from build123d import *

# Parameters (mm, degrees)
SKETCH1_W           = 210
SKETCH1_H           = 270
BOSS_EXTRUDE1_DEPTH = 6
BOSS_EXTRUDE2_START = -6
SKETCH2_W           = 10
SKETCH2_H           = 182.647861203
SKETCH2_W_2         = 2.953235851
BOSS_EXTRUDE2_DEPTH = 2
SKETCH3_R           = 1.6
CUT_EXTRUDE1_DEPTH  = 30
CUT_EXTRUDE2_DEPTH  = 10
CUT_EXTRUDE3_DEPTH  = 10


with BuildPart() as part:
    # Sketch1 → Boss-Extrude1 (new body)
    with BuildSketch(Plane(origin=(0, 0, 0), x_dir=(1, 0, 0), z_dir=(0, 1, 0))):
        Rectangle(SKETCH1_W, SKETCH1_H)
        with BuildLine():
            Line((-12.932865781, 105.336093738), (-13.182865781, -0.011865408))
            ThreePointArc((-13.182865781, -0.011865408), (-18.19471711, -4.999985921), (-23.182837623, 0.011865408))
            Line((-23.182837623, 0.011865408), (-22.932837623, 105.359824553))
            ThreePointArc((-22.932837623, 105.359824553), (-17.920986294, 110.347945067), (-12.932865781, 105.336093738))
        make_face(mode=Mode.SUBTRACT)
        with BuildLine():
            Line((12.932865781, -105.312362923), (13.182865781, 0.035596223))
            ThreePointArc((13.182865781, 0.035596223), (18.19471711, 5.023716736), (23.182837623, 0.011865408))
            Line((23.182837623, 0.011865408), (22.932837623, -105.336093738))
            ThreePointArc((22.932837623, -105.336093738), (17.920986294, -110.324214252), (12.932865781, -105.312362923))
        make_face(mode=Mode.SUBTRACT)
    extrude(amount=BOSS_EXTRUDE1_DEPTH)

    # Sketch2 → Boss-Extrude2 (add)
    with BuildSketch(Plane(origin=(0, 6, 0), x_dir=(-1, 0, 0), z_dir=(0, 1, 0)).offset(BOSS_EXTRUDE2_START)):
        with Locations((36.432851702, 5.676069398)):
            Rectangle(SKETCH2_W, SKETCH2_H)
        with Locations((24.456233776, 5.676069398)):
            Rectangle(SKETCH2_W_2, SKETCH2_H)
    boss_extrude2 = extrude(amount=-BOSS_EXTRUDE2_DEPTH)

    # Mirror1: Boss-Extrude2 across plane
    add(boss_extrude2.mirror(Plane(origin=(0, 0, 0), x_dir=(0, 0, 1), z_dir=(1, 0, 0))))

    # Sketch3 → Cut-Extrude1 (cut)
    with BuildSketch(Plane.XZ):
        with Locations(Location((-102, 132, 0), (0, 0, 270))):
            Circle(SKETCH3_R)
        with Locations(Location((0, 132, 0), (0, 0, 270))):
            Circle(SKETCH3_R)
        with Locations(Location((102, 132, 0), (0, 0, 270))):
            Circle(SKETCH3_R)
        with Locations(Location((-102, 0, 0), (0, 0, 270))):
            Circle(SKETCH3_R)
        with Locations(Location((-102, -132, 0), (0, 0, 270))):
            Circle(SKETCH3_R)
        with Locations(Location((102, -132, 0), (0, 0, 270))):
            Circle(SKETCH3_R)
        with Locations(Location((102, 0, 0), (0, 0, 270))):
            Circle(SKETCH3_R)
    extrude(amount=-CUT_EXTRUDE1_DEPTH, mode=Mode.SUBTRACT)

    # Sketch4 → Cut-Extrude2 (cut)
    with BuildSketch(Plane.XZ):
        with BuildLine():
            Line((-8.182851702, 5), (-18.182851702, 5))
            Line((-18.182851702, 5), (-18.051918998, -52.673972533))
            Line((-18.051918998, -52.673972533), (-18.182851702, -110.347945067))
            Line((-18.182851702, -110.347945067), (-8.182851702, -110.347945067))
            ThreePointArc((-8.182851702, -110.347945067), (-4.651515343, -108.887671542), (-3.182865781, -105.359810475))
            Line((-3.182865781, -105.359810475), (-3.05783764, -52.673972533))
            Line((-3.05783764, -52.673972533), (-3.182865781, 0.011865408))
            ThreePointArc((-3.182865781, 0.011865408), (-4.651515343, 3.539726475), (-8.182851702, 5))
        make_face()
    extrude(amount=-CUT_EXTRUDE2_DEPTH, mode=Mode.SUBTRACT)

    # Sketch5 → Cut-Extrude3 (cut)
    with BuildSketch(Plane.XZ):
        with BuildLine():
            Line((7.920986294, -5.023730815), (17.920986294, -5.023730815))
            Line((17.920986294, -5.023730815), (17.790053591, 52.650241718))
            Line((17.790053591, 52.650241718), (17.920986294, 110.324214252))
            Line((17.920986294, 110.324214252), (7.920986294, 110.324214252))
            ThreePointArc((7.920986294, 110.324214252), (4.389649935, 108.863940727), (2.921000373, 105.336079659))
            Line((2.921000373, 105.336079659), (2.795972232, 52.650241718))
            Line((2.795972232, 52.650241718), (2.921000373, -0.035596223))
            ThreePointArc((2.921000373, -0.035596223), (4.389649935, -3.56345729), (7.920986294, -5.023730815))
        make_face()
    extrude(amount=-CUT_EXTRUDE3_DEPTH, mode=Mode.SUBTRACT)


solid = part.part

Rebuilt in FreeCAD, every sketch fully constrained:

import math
import FreeCAD as App
import Part
import Sketcher

V = App.Vector
Q = App.Units.Quantity

doc = App.newDocument("Part")
body = doc.addObject("PartDesign::Body", "Body")

# Sketch on XZ plane
sketch1 = doc.addObject("Sketcher::SketchObject", "Sketch")
body.addObject(sketch1)
sketch1.AttachmentSupport = (doc.XZ_Plane, [""])
sketch1.MapMode = "FlatFace"
sketch1.addGeometry([
    Part.LineSegment(V(-105, -135, 0), V(-105, 135, 0)),  # 0
    Part.LineSegment(V(-105, 135, 0), V(105, 135, 0)),  # 1
    Part.LineSegment(V(105, 135, 0), V(105, -135, 0)),  # 2
    Part.LineSegment(V(105, -135, 0), V(-105, -135, 0)),  # 3
    Part.ArcOfCircle(Part.Circle(V(18, 105, 0), V(0, 0, 1), 5), math.radians(0), math.radians(180)),  # 4
    Part.LineSegment(V(13, 105, 0), V(13, 0, 0)),  # 5
    Part.ArcOfCircle(Part.Circle(V(18, 0, 0), V(0, 0, 1), 5), math.radians(-180), math.radians(0)),  # 6
    Part.LineSegment(V(23, 0, 0), V(23, 105, 0)),  # 7
    Part.ArcOfCircle(Part.Circle(V(-18, -105, 0), V(0, 0, 1), 5), math.radians(-180), math.radians(0)),  # 8
    Part.LineSegment(V(-13, -105, 0), V(-13, 0, 0)),  # 9
    Part.ArcOfCircle(Part.Circle(V(-18, 0, 0), V(0, 0, 1), 5), math.radians(0), math.radians(180)),  # 10
    Part.LineSegment(V(-23, 0, 0), V(-23, -105, 0)),  # 11
], False)
sketch1.addConstraint([
    Sketcher.Constraint("Coincident", 0, 2, 1, 1),
    Sketcher.Constraint("Coincident", 1, 2, 2, 1),
    Sketcher.Constraint("Coincident", 2, 2, 3, 1),
    Sketcher.Constraint("Coincident", 3, 2, 0, 1),
    Sketcher.Constraint("Tangent", 4, 2, 5, 1),
    Sketcher.Constraint("Tangent", 5, 2, 6, 1),
    Sketcher.Constraint("Tangent", 6, 2, 7, 1),
    Sketcher.Constraint("Tangent", 7, 2, 4, 1),
    Sketcher.Constraint("Tangent", 8, 2, 9, 1),
    Sketcher.Constraint("Tangent", 9, 2, 10, 1),
    Sketcher.Constraint("Tangent", 10, 2, 11, 1),
    Sketcher.Constraint("Tangent", 11, 2, 8, 1),
    Sketcher.Constraint("Vertical", 0),
    Sketcher.Constraint("Horizontal", 1),
    Sketcher.Constraint("Vertical", 2),
    Sketcher.Constraint("Horizontal", 3),
    Sketcher.Constraint("Equal", 4, 6),
    Sketcher.Constraint("Equal", 6, 8),
    Sketcher.Constraint("Equal", 8, 10),
    Sketcher.Constraint("Symmetric", 0, 2, 2, 2, -1, 1),
    Sketcher.Constraint("Symmetric", 6, 2, 10, 2, -2),
    Sketcher.Constraint("PointOnObject", 10, 3, -1),
    Sketcher.Constraint("Parallel", 7, 9),
    Sketcher.Constraint("Equal", 7, 9),
    Sketcher.Constraint("Radius", 4, Q("5 mm")),
    Sketcher.Constraint("DistanceX", 1, 1, 1, 2, Q("210 mm")),
    Sketcher.Constraint("DistanceY", 0, 1, 0, 2, Q("270 mm")),
    Sketcher.Constraint("DistanceX", 4, 3, 6, 3, Q("0.25 mm")),
    Sketcher.Constraint("DistanceX", -1, 1, 4, 3, Q("17.932852 mm")),
    Sketcher.Constraint("DistanceY", -1, 1, 4, 3, Q("105.324228 mm")),
])
pad1 = doc.addObject("PartDesign::Pad", "Pad")
body.addObject(pad1)
pad1.Profile = sketch1
pad1.Length = 6
pad1.Reversed = True

# Sketch on XZ plane
sketch2 = doc.addObject("Sketcher::SketchObject", "Sketch001")
body.addObject(sketch2)
sketch2.AttachmentSupport = (doc.XZ_Plane, [""])
sketch2.MapMode = "FlatFace"
sketch2.addGeometry([
    Part.LineSegment(V(-31.4, 97, 0), V(-31.4, -85.6, 0)),  # 0
    Part.LineSegment(V(-31.4, -85.6, 0), V(-41.4, -85.6, 0)),  # 1
    Part.LineSegment(V(-41.4, -85.6, 0), V(-41.4, 97, 0)),  # 2
    Part.LineSegment(V(-41.4, 97, 0), V(-31.4, 97, 0)),  # 3
    Part.LineSegment(V(-23, 97, 0), V(-23, -85.6, 0)),  # 4
    Part.LineSegment(V(-23, -85.6, 0), V(-25.9, -85.6, 0)),  # 5
    Part.LineSegment(V(-25.9, -85.6, 0), V(-25.9, 97, 0)),  # 6
    Part.LineSegment(V(-25.9, 97, 0), V(-23, 97, 0)),  # 7
], False)
sketch2.addConstraint([
    Sketcher.Constraint("Coincident", 0, 2, 1, 1),
    Sketcher.Constraint("Coincident", 1, 2, 2, 1),
    Sketcher.Constraint("Coincident", 2, 2, 3, 1),
    Sketcher.Constraint("Coincident", 3, 2, 0, 1),
    Sketcher.Constraint("Coincident", 4, 2, 5, 1),
    Sketcher.Constraint("Coincident", 5, 2, 6, 1),
    Sketcher.Constraint("Coincident", 6, 2, 7, 1),
    Sketcher.Constraint("Coincident", 7, 2, 4, 1),
    Sketcher.Constraint("Vertical", 0),
    Sketcher.Constraint("Horizontal", 1),
    Sketcher.Constraint("Vertical", 2),
    Sketcher.Constraint("Horizontal", 3),
    Sketcher.Constraint("Vertical", 4),
    Sketcher.Constraint("Horizontal", 5),
    Sketcher.Constraint("Vertical", 6),
    Sketcher.Constraint("Horizontal", 7),
    Sketcher.Constraint("Horizontal", 1, 2, 4, 2),
    Sketcher.Constraint("Horizontal", 3, 2, 6, 2),
    Sketcher.Constraint("DistanceX", 1, 2, 1, 1, Q("10 mm")),
    Sketcher.Constraint("DistanceY", -1, 1, 2, 2, Q("97 mm")),
    Sketcher.Constraint("DistanceX", 0, 2, 5, 2, Q("5.5 mm")),
    Sketcher.Constraint("DistanceY", 0, 2, 0, 1, Q("182.647861 mm")),
    Sketcher.Constraint("DistanceX", 5, 2, 5, 1, Q("2.953236 mm")),
    Sketcher.Constraint("DistanceX", 0, 2, -1, 1, Q("31.432852 mm")),
])
pad2 = doc.addObject("PartDesign::Pad", "Pad001")
body.addObject(pad2)
pad2.Profile = sketch2
pad2.Length = 2
doc.recompute()

mirrored = doc.addObject("PartDesign::Mirrored", "Mirrored")
body.addObject(mirrored)
mirrored.Originals = [pad2]
mirrored.MirrorPlane = (doc.YZ_Plane, [""])
body.Tip = mirrored

# Sketch on XZ plane
sketch3 = doc.addObject("Sketcher::SketchObject", "Sketch002")
body.addObject(sketch3)
sketch3.AttachmentSupport = (doc.XZ_Plane, [""])
sketch3.MapMode = "FlatFace"
sketch3.addGeometry([
    Part.Circle(V(-102, 132, 0), V(0, 0, 1), 1.6),  # 0
    Part.Circle(V(0, 132, 0), V(0, 0, 1), 1.6),  # 1
    Part.Circle(V(102, 132, 0), V(0, 0, 1), 1.6),  # 2
    Part.Circle(V(-102, 0, 0), V(0, 0, 1), 1.6),  # 3
    Part.Circle(V(-102, -132, 0), V(0, 0, 1), 1.6),  # 4
    Part.Circle(V(102, -132, 0), V(0, 0, 1), 1.6),  # 5
    Part.Circle(V(102, 0, 0), V(0, 0, 1), 1.6),  # 6
], False)
sketch3.addConstraint([
    Sketcher.Constraint("Equal", 0, 1),
    Sketcher.Constraint("Equal", 1, 2),
    Sketcher.Constraint("Equal", 2, 3),
    Sketcher.Constraint("Equal", 3, 4),
    Sketcher.Constraint("Equal", 4, 5),
    Sketcher.Constraint("Equal", 5, 6),
    Sketcher.Constraint("Symmetric", 2, 3, 4, 3, -1, 1),
    Sketcher.Constraint("Symmetric", 0, 3, 5, 3, -1, 1),
    Sketcher.Constraint("Symmetric", 3, 3, 6, 3, -1, 1),
    Sketcher.Constraint("Symmetric", 0, 3, 2, 3, -2),
    Sketcher.Constraint("PointOnObject", 1, 3, -2),
    Sketcher.Constraint("PointOnObject", 3, 3, -1),
    Sketcher.Constraint("Horizontal", 0, 3, 1, 3),
    Sketcher.Constraint("Vertical", 0, 3, 3, 3),
    Sketcher.Constraint("Diameter", 0, Q("3.2 mm")),
    Sketcher.Constraint("DistanceX", 0, 3, -1, 1, Q("102 mm")),
    Sketcher.Constraint("DistanceY", -1, 1, 0, 3, Q("132 mm")),
])
pocket1 = doc.addObject("PartDesign::Pocket", "Pocket")
body.addObject(pocket1)
pocket1.Profile = sketch3
pocket1.Length = 30

# Sketch on XZ plane
sketch4 = doc.addObject("Sketcher::SketchObject", "Sketch003")
body.addObject(sketch4)
sketch4.AttachmentSupport = (doc.XZ_Plane, [""])
sketch4.MapMode = "FlatFace"
sketch4.addGeometry([
    Part.LineSegment(V(-8, 5, 0), V(-18, 5, 0)),  # 0
    Part.LineSegment(V(-18, 5, 0), V(-18, -53, 0)),  # 1
    Part.LineSegment(V(-18, -53, 0), V(-18, -110, 0)),  # 2
    Part.LineSegment(V(-18, -110, 0), V(-8, -110, 0)),  # 3
    Part.ArcOfCircle(Part.Circle(V(-8, -105, 0), V(0, 0, 1), 5), math.radians(-90), math.radians(0)),  # 4
    Part.LineSegment(V(-3, -105, 0), V(-3, -53, 0)),  # 5
    Part.LineSegment(V(-3, -53, 0), V(-3, 0, 0)),  # 6
    Part.ArcOfCircle(Part.Circle(V(-8, 0, 0), V(0, 0, 1), 5), math.radians(0), math.radians(90)),  # 7
], False)
sketch4.addConstraint([
    Sketcher.Constraint("Coincident", 0, 2, 1, 1),
    Sketcher.Constraint("Coincident", 1, 2, 2, 1),
    Sketcher.Constraint("Coincident", 2, 2, 3, 1),
    Sketcher.Constraint("Tangent", 3, 2, 4, 1),
    Sketcher.Constraint("Tangent", 4, 2, 5, 1),
    Sketcher.Constraint("Coincident", 5, 2, 6, 1),
    Sketcher.Constraint("Tangent", 6, 2, 7, 1),
    Sketcher.Constraint("Tangent", 7, 2, 0, 1),
    Sketcher.Constraint("Horizontal", 0),
    Sketcher.Constraint("Horizontal", 3),
    Sketcher.Constraint("Equal", 4, 7),
    Sketcher.Constraint("PointOnObject", 7, 3, -1),
    Sketcher.Constraint("Horizontal", 1, 2, 5, 2),
    Sketcher.Constraint("Vertical", 4, 3, 7, 3),
    Sketcher.Constraint("Vertical", 0, 2, 2, 2),
    Sketcher.Constraint("Equal", 1, 2),
    Sketcher.Constraint("Radius", 4, Q("5 mm")),
    Sketcher.Constraint("DistanceX", 0, 2, 0, 1, Q("10 mm")),
    Sketcher.Constraint("Distance", 1, Q("57.674121 mm")),
    Sketcher.Constraint("DistanceX", 4, 3, -1, 1, Q("8.182852 mm")),
    Sketcher.Constraint("DistanceX", 1, 2, -1, 1, Q("18.051919 mm")),
    Sketcher.Constraint("DistanceY", 4, 2, -1, 1, Q("105.35981 mm")),
])
pocket2 = doc.addObject("PartDesign::Pocket", "Pocket001")
body.addObject(pocket2)
pocket2.Profile = sketch4
pocket2.Length = 10

# Sketch on XZ plane
sketch5 = doc.addObject("Sketcher::SketchObject", "Sketch004")
body.addObject(sketch5)
sketch5.AttachmentSupport = (doc.XZ_Plane, [""])
sketch5.MapMode = "FlatFace"
sketch5.addGeometry([
    Part.LineSegment(V(8, -5, 0), V(18, -5, 0)),  # 0
    Part.LineSegment(V(18, -5, 0), V(18, 53, 0)),  # 1
    Part.LineSegment(V(18, 53, 0), V(18, 110, 0)),  # 2
    Part.LineSegment(V(18, 110, 0), V(8, 110, 0)),  # 3
    Part.ArcOfCircle(Part.Circle(V(8, 105, 0), V(0, 0, 1), 5), math.radians(90), math.radians(180)),  # 4
    Part.LineSegment(V(3, 105, 0), V(3, 53, 0)),  # 5
    Part.LineSegment(V(3, 53, 0), V(3, 0, 0)),  # 6
    Part.ArcOfCircle(Part.Circle(V(8, 0, 0), V(0, 0, 1), 5), math.radians(-180), math.radians(-90)),  # 7
], False)
sketch5.addConstraint([
    Sketcher.Constraint("Coincident", 0, 2, 1, 1),
    Sketcher.Constraint("Coincident", 1, 2, 2, 1),
    Sketcher.Constraint("Coincident", 2, 2, 3, 1),
    Sketcher.Constraint("Tangent", 3, 2, 4, 1),
    Sketcher.Constraint("Tangent", 4, 2, 5, 1),
    Sketcher.Constraint("Coincident", 5, 2, 6, 1),
    Sketcher.Constraint("Tangent", 6, 2, 7, 1),
    Sketcher.Constraint("Tangent", 7, 2, 0, 1),
    Sketcher.Constraint("Horizontal", 0),
    Sketcher.Constraint("Horizontal", 3),
    Sketcher.Constraint("Equal", 4, 7),
    Sketcher.Constraint("Horizontal", 1, 2, 5, 2),
    Sketcher.Constraint("Vertical", 4, 3, 7, 3),
    Sketcher.Constraint("Vertical", 0, 2, 2, 2),
    Sketcher.Constraint("Equal", 1, 2),
    Sketcher.Constraint("Radius", 4, Q("5 mm")),
    Sketcher.Constraint("DistanceX", 0, 1, 0, 2, Q("10 mm")),
    Sketcher.Constraint("DistanceX", -1, 1, 4, 2, Q("2.921 mm")),
    Sketcher.Constraint("Distance", 1, Q("57.674121 mm")),
    Sketcher.Constraint("DistanceY", 7, 3, -1, 1, Q("0.023731 mm")),
    Sketcher.Constraint("DistanceY", -1, 1, 4, 2, Q("105.33608 mm")),
    Sketcher.Constraint("DistanceX", 5, 2, 1, 2, Q("14.994081 mm")),
])
pocket3 = doc.addObject("PartDesign::Pocket", "Pocket002")
body.addObject(pocket3)
pocket3.Profile = sketch5
pocket3.Length = 10

doc.recompute()
